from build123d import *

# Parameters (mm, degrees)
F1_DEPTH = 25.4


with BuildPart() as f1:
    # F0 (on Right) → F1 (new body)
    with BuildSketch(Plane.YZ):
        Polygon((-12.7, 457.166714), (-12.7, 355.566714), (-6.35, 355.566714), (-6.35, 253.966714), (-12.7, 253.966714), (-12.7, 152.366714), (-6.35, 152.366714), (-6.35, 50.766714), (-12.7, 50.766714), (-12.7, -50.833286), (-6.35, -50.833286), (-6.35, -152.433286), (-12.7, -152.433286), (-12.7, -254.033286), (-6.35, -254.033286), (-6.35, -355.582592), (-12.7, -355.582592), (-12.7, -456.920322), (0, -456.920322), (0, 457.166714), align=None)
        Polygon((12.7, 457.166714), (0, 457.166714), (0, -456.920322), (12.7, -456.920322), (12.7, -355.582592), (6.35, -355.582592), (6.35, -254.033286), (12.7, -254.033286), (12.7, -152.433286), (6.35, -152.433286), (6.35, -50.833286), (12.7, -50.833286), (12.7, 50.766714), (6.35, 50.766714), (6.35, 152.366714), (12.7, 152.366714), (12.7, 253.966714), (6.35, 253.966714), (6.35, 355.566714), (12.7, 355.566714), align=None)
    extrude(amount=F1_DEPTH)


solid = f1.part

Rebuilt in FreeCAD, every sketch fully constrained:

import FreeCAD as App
import Part
import Sketcher
from FreeCAD import Vector
Q = App.Units.Quantity


def add_polygon(sketch, points):
    """Adds a closed chain of lines whose ends are joined by coincident constraints."""
    first, n = sketch.GeometryCount, len(points)
    for a, b in zip(points, points[1:] + points[:1]):
        sketch.addGeometry(Part.LineSegment(App.Vector(*a, 0), App.Vector(*b, 0)), False)
    for i in range(n):
        sketch.addConstraint(Sketcher.Constraint("Coincident", first + i, 2, first + (i + 1) % n, 1))

doc = App.newDocument("Part")
body = doc.addObject("PartDesign::Body", "Body")

# Sketch on YZ plane
sketch1 = doc.addObject("Sketcher::SketchObject", "Sketch")
body.addObject(sketch1)
sketch1.AttachmentSupport = (doc.YZ_Plane, [""])
sketch1.MapMode = "FlatFace"
add_polygon(sketch1, [(-13, 457), (-13, 356), (-6, 356), (-6, 254), (-13, 254), (-13, 152), (-6, 152), (-6, 51), (-13, 51), (-13, -51), (-6, -51), (-6, -152), (-13, -152), (-13, -254), (-6, -254), (-6, -356), (-13, -356), (-13, -457), (13, -457), (13, -356), (6, -356), (6, -254), (13, -254), (13, -152), (6, -152), (6, -51), (13, -51), (13, 51), (6, 51), (6, 152), (13, 152), (13, 254), (6, 254), (6, 356), (13, 356), (13, 457)])  # lines 0-35
sketch1.addConstraint([
    Sketcher.Constraint("Vertical", 0),
    Sketcher.Constraint("Horizontal", 1),
    Sketcher.Constraint("Vertical", 2),
    Sketcher.Constraint("Horizontal", 3),
    Sketcher.Constraint("Vertical", 4),
    Sketcher.Constraint("Horizontal", 5),
    Sketcher.Constraint("Vertical", 6),
    Sketcher.Constraint("Horizontal", 7),
    Sketcher.Constraint("Vertical", 8),
    Sketcher.Constraint("Horizontal", 9),
    Sketcher.Constraint("Vertical", 10),
    Sketcher.Constraint("Horizontal", 11),
    Sketcher.Constraint("Vertical", 12),
    Sketcher.Constraint("Horizontal", 13),
    Sketcher.Constraint("Vertical", 14),
    Sketcher.Constraint("Horizontal", 15),
    Sketcher.Constraint("Vertical", 16),
    Sketcher.Constraint("Horizontal", 17),
    Sketcher.Constraint("Vertical", 18),
    Sketcher.Constraint("Horizontal", 19),
    Sketcher.Constraint("Vertical", 20),
    Sketcher.Constraint("Horizontal", 21),
    Sketcher.Constraint("Vertical", 22),
    Sketcher.Constraint("Horizontal", 23),
    Sketcher.Constraint("Vertical", 24),
    Sketcher.Constraint("Horizontal", 25),
    Sketcher.Constraint("Vertical", 26),
    Sketcher.Constraint("Horizontal", 27),
    Sketcher.Constraint("Vertical", 28),
    Sketcher.Constraint("Horizontal", 29),
    Sketcher.Constraint("Vertical", 30),
    Sketcher.Constraint("Horizontal", 31),
    Sketcher.Constraint("Vertical", 32),
    Sketcher.Constraint("Horizontal", 33),
    Sketcher.Constraint("Vertical", 34),
    Sketcher.Constraint("Horizontal", 35),
    Sketcher.Constraint("Symmetric", 15, 2, 18, 2, -2),
    Sketcher.Constraint("Symmetric", 13, 2, 20, 2, -2),
    Sketcher.Constraint("Symmetric", 11, 2, 22, 2, -2),
    Sketcher.Constraint("Symmetric", 9, 2, 24, 2, -2),
    Sketcher.Constraint("Symmetric", 7, 2, 26, 2, -2),
    Sketcher.Constraint("Symmetric", 5, 2, 28, 2, -2),
    Sketcher.Constraint("Symmetric", 3, 2, 30, 2, -2),
    Sketcher.Constraint("Symmetric", 1, 2, 32, 2, -2),
    Sketcher.Constraint("Vertical", 0, 2, 3, 2),
    Sketcher.Constraint("Vertical", 2, 2, 5, 2),
    Sketcher.Constraint("Vertical", 4, 2, 7, 2),
    Sketcher.Constraint("Vertical", 6, 2, 9, 2),
    Sketcher.Constraint("Vertical", 8, 2, 11, 2),
    Sketcher.Constraint("Vertical", 10, 2, 13, 2),
    Sketcher.Constraint("Vertical", 12, 2, 15, 2),
    Sketcher.Constraint("Vertical", 30, 2, 33, 2),
    Sketcher.Constraint("Equal", 0, 2),
    Sketcher.Constraint("Equal", 2, 4),
    Sketcher.Constraint("Equal", 4, 6),
    Sketcher.Constraint("Equal", 6, 8),
    Sketcher.Constraint("Equal", 8, 10),
    Sketcher.Constraint("Equal", 10, 12),
    Sketcher.Constraint("DistanceX", 17, 1, 17, 2, Q("1 in")),
    Sketcher.Constraint("DistanceY", 0, 2, 0, 1, Q("4 in")),
    Sketcher.Constraint("DistanceX", 1, 1, 1, 2, Q("0.25 in")),
    Sketcher.Constraint("DistanceY", 16, 2, 16, 1, Q("101.33773 mm")),
    Sketcher.Constraint("DistanceY", 14, 2, 14, 1, Q("101.549306 mm")),
    Sketcher.Constraint("DistanceY", 14, 2, -1, 1, Q("355.582592 mm")),
])
pad1 = doc.addObject("PartDesign::Pad", "Pad")
body.addObject(pad1)
pad1.Profile = sketch1
pad1.Length = Q("1 in")

doc.recompute()
